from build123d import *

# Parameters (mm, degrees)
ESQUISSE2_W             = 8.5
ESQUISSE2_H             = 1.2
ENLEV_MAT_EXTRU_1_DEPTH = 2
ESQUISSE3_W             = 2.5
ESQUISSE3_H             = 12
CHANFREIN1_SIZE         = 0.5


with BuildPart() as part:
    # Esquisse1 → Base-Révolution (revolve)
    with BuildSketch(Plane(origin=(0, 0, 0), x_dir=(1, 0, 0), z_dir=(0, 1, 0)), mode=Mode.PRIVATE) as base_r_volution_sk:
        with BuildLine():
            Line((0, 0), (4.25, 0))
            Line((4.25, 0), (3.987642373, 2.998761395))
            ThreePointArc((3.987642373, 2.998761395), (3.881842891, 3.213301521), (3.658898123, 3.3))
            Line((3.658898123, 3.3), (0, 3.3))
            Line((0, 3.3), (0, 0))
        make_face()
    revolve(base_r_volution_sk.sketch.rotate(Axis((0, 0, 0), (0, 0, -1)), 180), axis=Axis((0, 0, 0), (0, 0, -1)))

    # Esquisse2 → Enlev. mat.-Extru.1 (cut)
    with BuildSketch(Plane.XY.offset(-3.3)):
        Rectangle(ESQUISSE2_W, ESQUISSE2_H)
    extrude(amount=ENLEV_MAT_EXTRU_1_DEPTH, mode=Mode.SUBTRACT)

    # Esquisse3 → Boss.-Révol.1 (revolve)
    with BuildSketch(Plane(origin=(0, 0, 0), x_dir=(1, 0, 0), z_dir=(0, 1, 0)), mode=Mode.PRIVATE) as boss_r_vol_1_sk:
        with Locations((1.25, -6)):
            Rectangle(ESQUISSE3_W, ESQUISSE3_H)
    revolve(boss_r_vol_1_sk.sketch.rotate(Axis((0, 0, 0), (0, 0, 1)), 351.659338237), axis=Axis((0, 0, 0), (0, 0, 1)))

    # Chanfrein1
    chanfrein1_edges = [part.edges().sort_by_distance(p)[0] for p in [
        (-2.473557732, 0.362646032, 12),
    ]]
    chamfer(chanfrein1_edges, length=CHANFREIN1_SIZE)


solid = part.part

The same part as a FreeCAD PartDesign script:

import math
import FreeCAD as App
import Part
import Sketcher

V = App.Vector
Q = App.Units.Quantity


def edges_at(feature, points):
    """Names of the edges that pass closest to the given points."""
    edges = feature.Shape.Edges
    near = lambda p: min(range(len(edges)), key=lambda i: edges[i].distToShape(Part.Vertex(*p))[0])
    return sorted({f"Edge{near(p) + 1}" for p in points})


def add_polygon(sketch, points):
    """Adds a closed chain of lines whose ends are joined by coincident constraints."""
    first, n = sketch.GeometryCount, len(points)
    for a, b in zip(points, points[1:] + points[:1]):
        sketch.addGeometry(Part.LineSegment(App.Vector(*a, 0), App.Vector(*b, 0)), False)
    for i in range(n):
        sketch.addConstraint(Sketcher.Constraint("Coincident", first + i, 2, first + (i + 1) % n, 1))

doc = App.newDocument("Part")
params = doc.addObject("Spreadsheet::Sheet", "Params")
for row, (alias, value) in enumerate([
    ("sketch1_radius", "0.33 mm"),
    ("sketch1_height", "3.3 mm"),
    ("sketch1_width", "4.25 mm"),
    ("revolution_angle", "360 deg"),
    ("sketch2_width", "8.5 mm"),
    ("sketch2_height", "1.2 mm"),
    ("pocket1_length", "2 mm"),
    ("sketch3_height", "12 mm"),
    ("sketch3_width", "2.5 mm"),
    ("revolution2_angle", "360 deg"),
    ("chamfer_size", "0.5 mm"),
], start=1):
    params.set(f"A{row}", alias)
    params.set(f"B{row}", "=" + value)
    params.setAlias(f"B{row}", alias)

body = doc.addObject("PartDesign::Body", "Body")

# Sketch on XZ plane
sketch1 = body.newObject("Sketcher::SketchObject", "Sketch")
sketch1.AttachmentSupport = (doc.getObject("XZ_Plane"), [""])
sketch1.MapMode = "FlatFace"
sketch1.addGeometry(Part.LineSegment(V(0, 0, 0), V(4.25, 0, 0)), False)
sketch1.addGeometry(Part.LineSegment(V(4.25, 0, 0), V(3.99, -3, 0)), False)
sketch1.addGeometry(Part.ArcOfCircle(Part.Circle(V(3.66, -2.97, 0), V(0, 0, 1), 0.33), math.radians(-90), math.radians(-5)), False)
sketch1.addGeometry(Part.LineSegment(V(3.66, -3.3, 0), V(0, -3.3, 0)), False)
sketch1.addGeometry(Part.LineSegment(V(0, -3.3, 0), V(0, 0, 0)), False)
sketch1.addConstraint(Sketcher.Constraint("Coincident", 0, 2, 1, 1))
sketch1.addConstraint(Sketcher.Constraint("Tangent", 1, 2, 2, 2))
sketch1.addConstraint(Sketcher.Constraint("Tangent", 2, 1, 3, 1))
sketch1.addConstraint(Sketcher.Constraint("Coincident", 3, 2, 4, 1))
sketch1.addConstraint(Sketcher.Constraint("Coincident", 4, 2, 0, 1))
sketch1.addConstraint(Sketcher.Constraint("Horizontal", 0))
sketch1.addConstraint(Sketcher.Constraint("Horizontal", 3))
sketch1.addConstraint(Sketcher.Constraint("Vertical", 4))
sketch1.addConstraint(Sketcher.Constraint("Coincident", 4, 2, -1, 1))
sketch1.addConstraint(Sketcher.Constraint("Angle", 1, Q("-95 deg")))
sketch1.addConstraint(Sketcher.Constraint("Radius", 2, 0.33))
sketch1.addConstraint(Sketcher.Constraint("DistanceY", 4, 1, 4, 2, 3.3))
sketch1.addConstraint(Sketcher.Constraint("DistanceX", 0, 1, 0, 2, 4.25))
sketch1.setExpression("Constraints[10]", "Params.sketch1_radius")
sketch1.setExpression("Constraints[11]", "Params.sketch1_height")
sketch1.setExpression("Constraints[12]", "Params.sketch1_width")
revolution = body.newObject("PartDesign::Revolution", "Revolution")
revolution.Profile = sketch1
revolution.ReferenceAxis = (sketch1, ["V_Axis"])
revolution.setExpression("Angle", "Params.revolution_angle")

# Sketch on XY plane
sketch2 = body.newObject("Sketcher::SketchObject", "Sketch001")
sketch2.AttachmentSupport = (doc.getObject("XY_Plane"), [""])
sketch2.MapMode = "FlatFace"
sketch2.AttachmentOffset = App.Placement(V(0, 0, -3.3), App.Rotation())
add_polygon(sketch2, [(-4.2, 0.6), (-4.2, -0.6), (4.2, -0.6), (4.2, 0.6)])  # lines 0-3
sketch2.addConstraint(Sketcher.Constraint("Vertical", 0))
sketch2.addConstraint(Sketcher.Constraint("Horizontal", 1))
sketch2.addConstraint(Sketcher.Constraint("Vertical", 2))
sketch2.addConstraint(Sketcher.Constraint("Horizontal", 3))
sketch2.addConstraint(Sketcher.Constraint("Symmetric", 0, 2, 2, 2, -1, 1))
sketch2.addConstraint(Sketcher.Constraint("DistanceX", 1, 1, 1, 2, 8.5))
sketch2.addConstraint(Sketcher.Constraint("DistanceY", 0, 2, 0, 1, 1.2))
sketch2.setExpression("Constraints[9]", "Params.sketch2_width")
sketch2.setExpression("Constraints[10]", "Params.sketch2_height")
pocket1 = body.newObject("PartDesign::Pocket", "Pocket")
pocket1.Profile = sketch2
pocket1.setExpression("Length", "Params.pocket1_length")
pocket1.Reversed = True

# Sketch on XZ plane
sketch3 = body.newObject("Sketcher::SketchObject", "Sketch002")
sketch3.AttachmentSupport = (doc.getObject("XZ_Plane"), [""])
sketch3.MapMode = "FlatFace"
add_polygon(sketch3, [(0, 0), (0, 12), (2.5, 12), (2.5, 0)])  # lines 0-3
sketch3.addConstraint(Sketcher.Constraint("Vertical", 0))
sketch3.addConstraint(Sketcher.Constraint("Horizontal", 1))
sketch3.addConstraint(Sketcher.Constraint("Vertical", 2))
sketch3.addConstraint(Sketcher.Constraint("Horizontal", 3))
sketch3.addConstraint(Sketcher.Constraint("Coincident", 3, 2, -1, 1))
sketch3.addConstraint(Sketcher.Constraint("DistanceY", 0, 1, 0, 2, 12.0))
sketch3.addConstraint(Sketcher.Constraint("DistanceX", 1, 1, 1, 2, 2.5))
sketch3.setExpression("Constraints[9]", "Params.sketch3_height")
sketch3.setExpression("Constraints[10]", "Params.sketch3_width")
revolution2 = body.newObject("PartDesign::Revolution", "Revolution001")
revolution2.Profile = sketch3
revolution2.ReferenceAxis = (sketch3, ["V_Axis"])
revolution2.setExpression("Angle", "Params.revolution2_angle")
doc.recompute()

chamfer = body.newObject("PartDesign::Chamfer", "Chamfer")
chamfer.Base = (revolution2, edges_at(revolution2, [(-2.474, 0.363, 12)]))
chamfer.setExpression("Size", "Params.chamfer_size")

doc.recompute()
